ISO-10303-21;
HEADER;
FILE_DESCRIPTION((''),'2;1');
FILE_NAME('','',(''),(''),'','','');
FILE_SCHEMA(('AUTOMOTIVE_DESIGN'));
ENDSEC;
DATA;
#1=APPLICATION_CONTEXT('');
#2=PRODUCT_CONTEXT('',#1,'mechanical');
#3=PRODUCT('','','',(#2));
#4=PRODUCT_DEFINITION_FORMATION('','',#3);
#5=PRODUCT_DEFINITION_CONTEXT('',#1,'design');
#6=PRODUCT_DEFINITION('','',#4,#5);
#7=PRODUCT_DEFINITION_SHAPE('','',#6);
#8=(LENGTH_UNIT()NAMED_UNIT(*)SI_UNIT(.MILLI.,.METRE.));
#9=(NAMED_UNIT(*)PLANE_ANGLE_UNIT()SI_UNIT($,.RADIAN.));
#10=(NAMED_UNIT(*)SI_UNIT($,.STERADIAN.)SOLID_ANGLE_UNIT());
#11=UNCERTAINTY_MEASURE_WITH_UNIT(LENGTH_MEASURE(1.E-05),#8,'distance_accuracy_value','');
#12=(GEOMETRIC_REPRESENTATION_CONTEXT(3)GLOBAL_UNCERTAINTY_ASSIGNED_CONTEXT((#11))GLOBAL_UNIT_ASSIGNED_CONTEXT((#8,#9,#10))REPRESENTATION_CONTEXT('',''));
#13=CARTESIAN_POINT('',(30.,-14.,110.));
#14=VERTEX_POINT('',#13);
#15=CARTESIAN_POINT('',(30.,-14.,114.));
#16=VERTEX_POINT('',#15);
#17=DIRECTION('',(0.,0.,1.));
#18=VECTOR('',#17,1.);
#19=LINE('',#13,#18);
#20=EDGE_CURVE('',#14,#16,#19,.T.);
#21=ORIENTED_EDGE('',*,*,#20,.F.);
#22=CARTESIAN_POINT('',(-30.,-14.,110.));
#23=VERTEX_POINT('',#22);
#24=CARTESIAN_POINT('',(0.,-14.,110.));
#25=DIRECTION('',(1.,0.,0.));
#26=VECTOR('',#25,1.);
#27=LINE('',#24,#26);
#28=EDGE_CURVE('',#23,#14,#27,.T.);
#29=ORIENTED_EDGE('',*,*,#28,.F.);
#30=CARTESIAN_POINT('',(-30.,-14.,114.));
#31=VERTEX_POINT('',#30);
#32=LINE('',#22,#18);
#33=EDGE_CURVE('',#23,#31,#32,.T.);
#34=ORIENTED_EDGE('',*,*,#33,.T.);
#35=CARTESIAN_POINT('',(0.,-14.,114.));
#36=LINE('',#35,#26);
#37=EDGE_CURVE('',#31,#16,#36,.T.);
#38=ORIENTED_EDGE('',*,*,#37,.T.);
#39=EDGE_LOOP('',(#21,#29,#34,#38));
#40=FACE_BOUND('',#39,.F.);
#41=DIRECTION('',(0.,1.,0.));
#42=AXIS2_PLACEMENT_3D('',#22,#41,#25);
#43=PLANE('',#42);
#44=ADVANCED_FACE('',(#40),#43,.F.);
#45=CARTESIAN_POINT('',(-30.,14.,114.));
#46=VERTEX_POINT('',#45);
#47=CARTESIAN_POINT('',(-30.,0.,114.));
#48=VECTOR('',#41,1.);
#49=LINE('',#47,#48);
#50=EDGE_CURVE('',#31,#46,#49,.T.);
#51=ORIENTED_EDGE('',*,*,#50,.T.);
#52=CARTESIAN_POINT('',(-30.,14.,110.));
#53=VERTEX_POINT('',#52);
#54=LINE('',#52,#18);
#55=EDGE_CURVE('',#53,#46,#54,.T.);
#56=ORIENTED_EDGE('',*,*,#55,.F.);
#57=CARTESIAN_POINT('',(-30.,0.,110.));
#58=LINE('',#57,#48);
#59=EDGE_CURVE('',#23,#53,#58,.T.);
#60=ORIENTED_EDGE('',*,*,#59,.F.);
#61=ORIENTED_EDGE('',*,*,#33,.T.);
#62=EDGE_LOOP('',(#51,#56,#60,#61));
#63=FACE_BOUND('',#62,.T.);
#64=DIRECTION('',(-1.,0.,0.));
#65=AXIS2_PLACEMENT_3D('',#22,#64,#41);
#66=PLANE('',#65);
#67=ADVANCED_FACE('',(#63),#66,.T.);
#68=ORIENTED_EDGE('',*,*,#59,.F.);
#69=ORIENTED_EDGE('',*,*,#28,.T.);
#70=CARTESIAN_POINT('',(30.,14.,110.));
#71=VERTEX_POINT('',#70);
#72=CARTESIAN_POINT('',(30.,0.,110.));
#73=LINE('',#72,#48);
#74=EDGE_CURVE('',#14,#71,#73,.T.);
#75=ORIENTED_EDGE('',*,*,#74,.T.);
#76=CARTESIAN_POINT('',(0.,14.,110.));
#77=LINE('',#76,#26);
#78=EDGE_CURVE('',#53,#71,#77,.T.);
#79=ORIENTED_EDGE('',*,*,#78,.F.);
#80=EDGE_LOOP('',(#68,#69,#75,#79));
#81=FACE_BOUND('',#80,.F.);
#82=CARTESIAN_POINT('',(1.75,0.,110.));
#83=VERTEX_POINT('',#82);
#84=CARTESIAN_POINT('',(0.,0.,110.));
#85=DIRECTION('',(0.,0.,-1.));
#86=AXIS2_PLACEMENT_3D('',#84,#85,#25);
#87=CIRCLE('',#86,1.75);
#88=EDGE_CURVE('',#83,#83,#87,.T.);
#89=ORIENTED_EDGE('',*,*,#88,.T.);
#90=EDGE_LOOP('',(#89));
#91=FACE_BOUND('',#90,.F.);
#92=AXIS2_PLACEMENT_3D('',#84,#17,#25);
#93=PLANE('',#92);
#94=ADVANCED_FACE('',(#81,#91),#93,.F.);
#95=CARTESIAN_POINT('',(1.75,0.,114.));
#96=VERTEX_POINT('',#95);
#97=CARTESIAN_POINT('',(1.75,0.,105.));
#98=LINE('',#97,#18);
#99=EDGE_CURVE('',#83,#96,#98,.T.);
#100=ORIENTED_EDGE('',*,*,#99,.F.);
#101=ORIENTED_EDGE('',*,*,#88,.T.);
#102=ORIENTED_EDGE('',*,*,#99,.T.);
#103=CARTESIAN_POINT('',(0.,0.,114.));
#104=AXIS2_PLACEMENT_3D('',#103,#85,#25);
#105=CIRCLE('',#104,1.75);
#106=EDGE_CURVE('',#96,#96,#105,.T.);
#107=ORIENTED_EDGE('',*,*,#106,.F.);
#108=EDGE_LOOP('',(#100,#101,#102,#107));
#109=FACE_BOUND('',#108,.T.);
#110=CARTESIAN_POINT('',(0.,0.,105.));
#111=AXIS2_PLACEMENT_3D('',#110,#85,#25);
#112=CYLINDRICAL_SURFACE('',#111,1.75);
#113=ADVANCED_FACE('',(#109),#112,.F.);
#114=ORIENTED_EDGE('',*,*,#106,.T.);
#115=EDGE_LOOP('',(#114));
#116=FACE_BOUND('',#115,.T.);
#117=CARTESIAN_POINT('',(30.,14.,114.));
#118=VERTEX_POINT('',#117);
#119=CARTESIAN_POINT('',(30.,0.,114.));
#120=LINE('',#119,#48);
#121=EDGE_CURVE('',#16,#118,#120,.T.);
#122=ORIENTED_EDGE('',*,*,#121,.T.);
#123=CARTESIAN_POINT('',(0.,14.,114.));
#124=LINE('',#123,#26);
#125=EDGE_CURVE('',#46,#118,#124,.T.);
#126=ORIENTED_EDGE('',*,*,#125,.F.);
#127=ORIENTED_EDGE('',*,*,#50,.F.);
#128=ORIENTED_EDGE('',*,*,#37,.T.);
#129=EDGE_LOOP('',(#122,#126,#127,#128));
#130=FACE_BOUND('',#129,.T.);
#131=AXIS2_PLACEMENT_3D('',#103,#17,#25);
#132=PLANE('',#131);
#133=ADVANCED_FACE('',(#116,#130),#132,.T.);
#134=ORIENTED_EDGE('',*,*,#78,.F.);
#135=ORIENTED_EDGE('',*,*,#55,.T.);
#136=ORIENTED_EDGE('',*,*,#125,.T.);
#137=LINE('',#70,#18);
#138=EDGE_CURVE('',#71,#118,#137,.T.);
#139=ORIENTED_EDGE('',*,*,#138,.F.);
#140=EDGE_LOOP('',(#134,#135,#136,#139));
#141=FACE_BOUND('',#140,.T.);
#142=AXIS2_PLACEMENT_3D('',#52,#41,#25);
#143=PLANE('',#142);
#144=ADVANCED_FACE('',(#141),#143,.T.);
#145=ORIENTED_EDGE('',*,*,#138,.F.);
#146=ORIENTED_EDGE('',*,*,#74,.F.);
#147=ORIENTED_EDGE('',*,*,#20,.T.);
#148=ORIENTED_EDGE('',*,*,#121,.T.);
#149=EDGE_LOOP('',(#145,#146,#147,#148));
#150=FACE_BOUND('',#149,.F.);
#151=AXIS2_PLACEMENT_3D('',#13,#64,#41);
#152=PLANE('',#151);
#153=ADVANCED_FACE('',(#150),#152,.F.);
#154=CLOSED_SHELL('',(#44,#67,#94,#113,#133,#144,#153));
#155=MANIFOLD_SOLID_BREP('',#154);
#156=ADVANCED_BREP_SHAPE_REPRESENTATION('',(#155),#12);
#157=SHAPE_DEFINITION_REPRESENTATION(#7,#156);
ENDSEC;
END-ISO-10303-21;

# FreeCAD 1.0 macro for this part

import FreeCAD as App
import Part
import Sketcher


def add_polygon(sketch, points):
    """Adds a closed chain of lines whose ends are joined by coincident constraints."""
    first, n = sketch.GeometryCount, len(points)
    for a, b in zip(points, points[1:] + points[:1]):
        sketch.addGeometry(Part.LineSegment(App.Vector(*a, 0), App.Vector(*b, 0)), False)
    for i in range(n):
        sketch.addConstraint(Sketcher.Constraint("Coincident", first + i, 2, first + (i + 1) % n, 1))

doc = App.newDocument("Part")
body = doc.addObject("PartDesign::Body", "Body")

# Sketch on XY plane
sketch1 = body.newObject("Sketcher::SketchObject", "Sketch")
sketch1.AttachmentSupport = (doc.getObject("XY_Plane"), [""])
sketch1.MapMode = "FlatFace"
sketch1.AttachmentOffset = App.Placement(App.Vector(0, 0, 105), App.Rotation())
sketch1.addGeometry(Part.Circle(App.Vector(0, 0, 0), App.Vector(0, 0, 1), 1.75), False)
sketch1.addConstraint(Sketcher.Constraint("Coincident", 0, 3, -1, 1))
sketch1.addConstraint(Sketcher.Constraint("Diameter", 0, 3.5))
pad1 = body.newObject("PartDesign::Pad", "Pad")
pad1.Profile = sketch1
pad1.Length = 20
body2 = doc.addObject("PartDesign::Body", "Body001")

# Sketch on XY plane
sketch2 = body2.newObject("Sketcher::SketchObject", "Sketch001")
sketch2.AttachmentSupport = (doc.getObject("XY_Plane001"), [""])
sketch2.MapMode = "FlatFace"
sketch2.AttachmentOffset = App.Placement(App.Vector(0, 0, 110), App.Rotation())
add_polygon(sketch2, [(-30, 14), (-30, -14), (30, -14), (30, 14)])  # lines 0-3
sketch2.addConstraint(Sketcher.Constraint("Vertical", 0))
sketch2.addConstraint(Sketcher.Constraint("Horizontal", 1))
sketch2.addConstraint(Sketcher.Constraint("Vertical", 2))
sketch2.addConstraint(Sketcher.Constraint("Horizontal", 3))
sketch2.addConstraint(Sketcher.Constraint("Symmetric", 0, 2, 2, 2, -1, 1))
sketch2.addConstraint(Sketcher.Constraint("DistanceX", 1, 1, 1, 2, 60.0))
sketch2.addConstraint(Sketcher.Constraint("DistanceY", 0, 2, 0, 1, 28.0))
pad2 = body2.newObject("PartDesign::Pad", "Pad001")
pad2.Profile = sketch2
pad2.Length = 4
doc.recompute()

boolean = body2.newObject("PartDesign::Boolean", "Boolean")
boolean.Type = "Cut"
boolean.addObjects([body])

doc.recompute()
